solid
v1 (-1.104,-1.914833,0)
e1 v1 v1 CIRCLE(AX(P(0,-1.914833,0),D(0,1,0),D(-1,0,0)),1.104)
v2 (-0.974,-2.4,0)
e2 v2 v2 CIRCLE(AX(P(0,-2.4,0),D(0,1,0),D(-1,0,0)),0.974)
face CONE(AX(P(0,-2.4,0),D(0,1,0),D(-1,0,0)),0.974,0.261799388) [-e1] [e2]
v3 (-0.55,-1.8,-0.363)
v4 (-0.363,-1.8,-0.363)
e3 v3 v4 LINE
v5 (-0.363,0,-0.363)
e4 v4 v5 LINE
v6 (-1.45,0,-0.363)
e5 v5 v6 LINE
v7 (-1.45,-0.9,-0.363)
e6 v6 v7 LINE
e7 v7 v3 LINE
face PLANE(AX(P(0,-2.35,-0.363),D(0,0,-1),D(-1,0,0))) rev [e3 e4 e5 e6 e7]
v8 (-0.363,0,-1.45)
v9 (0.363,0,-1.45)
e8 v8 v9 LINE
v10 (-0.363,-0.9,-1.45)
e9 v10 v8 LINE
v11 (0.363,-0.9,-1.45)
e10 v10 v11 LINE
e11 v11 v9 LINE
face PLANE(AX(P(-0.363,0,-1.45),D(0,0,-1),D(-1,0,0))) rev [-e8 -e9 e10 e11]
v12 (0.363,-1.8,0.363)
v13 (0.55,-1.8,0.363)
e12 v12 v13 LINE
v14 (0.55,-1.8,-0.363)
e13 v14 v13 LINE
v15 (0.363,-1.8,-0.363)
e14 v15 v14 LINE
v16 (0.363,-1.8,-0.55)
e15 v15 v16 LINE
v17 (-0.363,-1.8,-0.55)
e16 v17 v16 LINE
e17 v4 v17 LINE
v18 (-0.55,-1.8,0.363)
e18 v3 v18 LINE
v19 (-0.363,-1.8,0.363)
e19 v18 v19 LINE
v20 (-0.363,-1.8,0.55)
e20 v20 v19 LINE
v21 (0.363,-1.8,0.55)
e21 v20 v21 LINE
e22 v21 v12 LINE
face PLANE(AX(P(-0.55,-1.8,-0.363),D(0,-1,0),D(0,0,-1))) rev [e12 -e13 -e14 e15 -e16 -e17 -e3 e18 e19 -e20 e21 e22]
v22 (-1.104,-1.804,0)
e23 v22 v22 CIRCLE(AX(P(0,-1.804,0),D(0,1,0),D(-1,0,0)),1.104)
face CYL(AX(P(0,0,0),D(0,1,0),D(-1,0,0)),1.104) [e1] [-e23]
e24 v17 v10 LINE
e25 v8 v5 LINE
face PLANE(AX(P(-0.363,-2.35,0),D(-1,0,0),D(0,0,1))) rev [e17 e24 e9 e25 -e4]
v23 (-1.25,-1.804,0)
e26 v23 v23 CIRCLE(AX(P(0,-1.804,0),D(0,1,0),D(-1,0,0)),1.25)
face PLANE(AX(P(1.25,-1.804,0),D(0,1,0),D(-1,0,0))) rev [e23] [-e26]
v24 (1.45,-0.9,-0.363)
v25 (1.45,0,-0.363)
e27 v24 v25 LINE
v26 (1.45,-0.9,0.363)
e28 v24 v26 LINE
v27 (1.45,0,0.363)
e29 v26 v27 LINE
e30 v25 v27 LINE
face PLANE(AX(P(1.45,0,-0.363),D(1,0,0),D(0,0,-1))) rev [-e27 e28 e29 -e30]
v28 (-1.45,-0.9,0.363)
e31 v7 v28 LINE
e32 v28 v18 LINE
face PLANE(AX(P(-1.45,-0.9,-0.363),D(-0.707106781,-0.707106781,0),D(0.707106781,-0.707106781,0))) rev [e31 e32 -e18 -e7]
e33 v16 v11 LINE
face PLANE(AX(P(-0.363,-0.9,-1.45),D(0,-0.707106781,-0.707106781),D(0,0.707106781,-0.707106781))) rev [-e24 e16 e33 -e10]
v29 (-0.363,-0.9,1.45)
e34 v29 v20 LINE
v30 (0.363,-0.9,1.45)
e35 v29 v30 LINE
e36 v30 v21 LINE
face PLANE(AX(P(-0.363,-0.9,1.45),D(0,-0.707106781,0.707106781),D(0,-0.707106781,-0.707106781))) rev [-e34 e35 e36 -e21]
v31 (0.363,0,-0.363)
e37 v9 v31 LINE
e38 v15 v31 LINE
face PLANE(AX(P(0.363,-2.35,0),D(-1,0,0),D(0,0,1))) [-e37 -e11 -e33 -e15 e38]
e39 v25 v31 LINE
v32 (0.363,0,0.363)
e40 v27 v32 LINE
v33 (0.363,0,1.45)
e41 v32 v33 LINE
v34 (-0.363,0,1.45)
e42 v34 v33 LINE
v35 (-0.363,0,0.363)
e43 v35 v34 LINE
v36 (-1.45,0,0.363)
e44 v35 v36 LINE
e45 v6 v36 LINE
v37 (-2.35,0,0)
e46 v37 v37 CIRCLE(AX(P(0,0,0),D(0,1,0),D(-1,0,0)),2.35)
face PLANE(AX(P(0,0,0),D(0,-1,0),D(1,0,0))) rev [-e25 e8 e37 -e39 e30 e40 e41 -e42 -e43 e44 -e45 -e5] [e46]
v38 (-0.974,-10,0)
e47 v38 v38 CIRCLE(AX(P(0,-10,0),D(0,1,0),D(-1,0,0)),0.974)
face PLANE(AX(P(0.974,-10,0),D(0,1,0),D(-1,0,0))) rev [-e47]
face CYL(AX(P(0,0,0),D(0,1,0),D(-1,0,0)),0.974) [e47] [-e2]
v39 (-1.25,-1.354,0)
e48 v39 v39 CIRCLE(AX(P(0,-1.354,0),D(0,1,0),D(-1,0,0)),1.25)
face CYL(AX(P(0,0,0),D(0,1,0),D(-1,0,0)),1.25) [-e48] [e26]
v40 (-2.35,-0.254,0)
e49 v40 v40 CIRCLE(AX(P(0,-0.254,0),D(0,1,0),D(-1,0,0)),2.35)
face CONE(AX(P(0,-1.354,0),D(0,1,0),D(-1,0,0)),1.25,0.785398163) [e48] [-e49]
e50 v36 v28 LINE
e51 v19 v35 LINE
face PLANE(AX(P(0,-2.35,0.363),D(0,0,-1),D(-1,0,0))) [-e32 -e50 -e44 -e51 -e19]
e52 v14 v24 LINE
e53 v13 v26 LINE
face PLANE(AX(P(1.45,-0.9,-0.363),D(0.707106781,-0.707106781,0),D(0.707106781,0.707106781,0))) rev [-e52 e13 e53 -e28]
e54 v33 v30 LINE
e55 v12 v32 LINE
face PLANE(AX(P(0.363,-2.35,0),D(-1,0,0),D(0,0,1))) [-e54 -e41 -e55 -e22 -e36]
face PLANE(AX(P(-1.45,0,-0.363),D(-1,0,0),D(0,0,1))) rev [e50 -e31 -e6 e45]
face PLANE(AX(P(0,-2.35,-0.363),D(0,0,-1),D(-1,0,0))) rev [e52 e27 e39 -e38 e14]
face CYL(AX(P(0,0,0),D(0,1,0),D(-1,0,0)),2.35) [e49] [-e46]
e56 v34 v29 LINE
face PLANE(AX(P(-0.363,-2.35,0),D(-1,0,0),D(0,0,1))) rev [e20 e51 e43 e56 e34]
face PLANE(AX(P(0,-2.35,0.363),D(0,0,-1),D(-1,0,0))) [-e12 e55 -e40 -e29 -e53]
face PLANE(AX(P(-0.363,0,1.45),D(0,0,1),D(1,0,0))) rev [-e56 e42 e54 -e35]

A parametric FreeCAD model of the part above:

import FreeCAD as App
import Part
import Sketcher

V = App.Vector
Q = App.Units.Quantity

doc = App.newDocument("Part")
params = doc.addObject("Spreadsheet::Sheet", "Params")
for row, (alias, value) in enumerate([
    ("sketch1_height", "10 mm"),
    ("sketch1_height2", "7.6 mm"),
    ("sketch1_width", "2.35 mm"),
    ("sketch1_height3", "0.45 mm"),
    ("revolution_angle", "360 deg"),
    ("sketch2_width", "1.1 mm"),
    ("sketch2_width2", "2.9 mm"),
    ("sketch2_height", "0.9 mm"),
    ("pocket1_length", "0.363 mm"),
    ("pocket1_length2", "0.363 mm"),
    ("sketch3_width", "0.9 mm"),
    ("sketch3_height", "1.1 mm"),
    ("sketch3_height2", "2.9 mm"),
    ("pocket2_length", "0.363 mm"),
    ("pocket2_length2", "0.363 mm"),
], start=1):
    params.set(f"A{row}", alias)
    params.set(f"B{row}", "=" + value)
    params.setAlias(f"B{row}", alias)

body = doc.addObject("PartDesign::Body", "Body")

# Sketch on XY plane
sketch1 = body.newObject("Sketcher::SketchObject", "Sketch")
sketch1.AttachmentSupport = (doc.getObject("XY_Plane"), [""])
sketch1.MapMode = "FlatFace"
sketch1.addGeometry([
    Part.LineSegment(V(2.35, 0, 0), V(0, 0, 0)),  # 0
    Part.LineSegment(V(0, 0, 0), V(0, -10, 0)),  # 1
    Part.LineSegment(V(0, -10, 0), V(0.97, -10, 0)),  # 2
    Part.LineSegment(V(0.97, -10, 0), V(0.97, -2.4, 0)),  # 3
    Part.LineSegment(V(0.97, -2.4, 0), V(1.1, -1.91, 0)),  # 4
    Part.LineSegment(V(1.1, -1.91, 0), V(1.1, -1.8, 0)),  # 5
    Part.LineSegment(V(1.1, -1.8, 0), V(1.25, -1.8, 0)),  # 6
    Part.LineSegment(V(1.25, -1.8, 0), V(1.25, -1.35, 0)),  # 7
    Part.LineSegment(V(1.25, -1.35, 0), V(2.35, -0.25, 0)),  # 8
    Part.LineSegment(V(2.35, -0.25, 0), V(2.35, 0, 0)),  # 9
], False)
sketch1.addConstraint([
    Sketcher.Constraint("Coincident", 0, 2, 1, 1),
    Sketcher.Constraint("Coincident", 1, 2, 2, 1),
    Sketcher.Constraint("Coincident", 2, 2, 3, 1),
    Sketcher.Constraint("Coincident", 3, 2, 4, 1),
    Sketcher.Constraint("Coincident", 4, 2, 5, 1),
    Sketcher.Constraint("Coincident", 5, 2, 6, 1),
    Sketcher.Constraint("Coincident", 6, 2, 7, 1),
    Sketcher.Constraint("Coincident", 7, 2, 8, 1),
    Sketcher.Constraint("Coincident", 8, 2, 9, 1),
    Sketcher.Constraint("Coincident", 9, 2, 0, 1),
    Sketcher.Constraint("Horizontal", 0),
    Sketcher.Constraint("Vertical", 1),
    Sketcher.Constraint("Horizontal", 2),
    Sketcher.Constraint("Vertical", 3),
    Sketcher.Constraint("Vertical", 5),
    Sketcher.Constraint("Horizontal", 6),
    Sketcher.Constraint("Vertical", 7),
    Sketcher.Constraint("Vertical", 9),
    Sketcher.Constraint("Coincident", 0, 2, -1, 1),
    Sketcher.Constraint("DistanceY", 1, 2, 1, 1, 10.0),
    Sketcher.Constraint("Angle", 4, Q("75 deg")),
    Sketcher.Constraint("Angle", 8, Q("45 deg")),
    Sketcher.Constraint("DistanceY", 3, 1, 3, 2, 7.6),
    Sketcher.Constraint("DistanceX", 0, 2, 0, 1, 2.35),
    Sketcher.Constraint("DistanceY", 7, 1, 7, 2, 0.45),
    Sketcher.Constraint("DistanceX", 7, 2, 8, 2, 1.1),
    Sketcher.Constraint("DistanceX", 2, 1, 2, 2, 0.974),
    Sketcher.Constraint("DistanceX", 6, 1, 6, 2, 0.146),
    Sketcher.Constraint("DistanceY", 9, 1, 9, 2, 0.254),
])
sketch1.setExpression("Constraints[19]", "Params.sketch1_height")
sketch1.setExpression("Constraints[22]", "Params.sketch1_height2")
sketch1.setExpression("Constraints[23]", "Params.sketch1_width")
sketch1.setExpression("Constraints[24]", "Params.sketch1_height3")
revolution = body.newObject("PartDesign::Revolution", "Revolution")
revolution.Profile = sketch1
revolution.ReferenceAxis = (sketch1, ["V_Axis"])
revolution.setExpression("Angle", "Params.revolution_angle")

# Sketch on XY plane
sketch2 = body.newObject("Sketcher::SketchObject", "Sketch001")
sketch2.AttachmentSupport = (doc.getObject("XY_Plane"), [""])
sketch2.MapMode = "FlatFace"
sketch2.addGeometry([
    Part.LineSegment(V(-0.6, -1.8, 0), V(0.6, -1.8, 0)),  # 0
    Part.LineSegment(V(0.6, -1.8, 0), V(1.4, -0.9, 0)),  # 1
    Part.LineSegment(V(1.4, -0.9, 0), V(1.4, 0, 0)),  # 2
    Part.LineSegment(V(1.4, 0, 0), V(-1.4, 0, 0)),  # 3
    Part.LineSegment(V(-1.4, 0, 0), V(-1.4, -0.9, 0)),  # 4
    Part.LineSegment(V(-1.4, -0.9, 0), V(-0.6, -1.8, 0)),  # 5
], False)
sketch2.addConstraint([
    Sketcher.Constraint("Coincident", 0, 2, 1, 1),
    Sketcher.Constraint("Coincident", 1, 2, 2, 1),
    Sketcher.Constraint("Coincident", 2, 2, 3, 1),
    Sketcher.Constraint("Coincident", 3, 2, 4, 1),
    Sketcher.Constraint("Coincident", 4, 2, 5, 1),
    Sketcher.Constraint("Coincident", 5, 2, 0, 1),
    Sketcher.Constraint("Horizontal", 0),
    Sketcher.Constraint("Vertical", 2),
    Sketcher.Constraint("Horizontal", 3),
    Sketcher.Constraint("Vertical", 4),
    Sketcher.Constraint("Symmetric", 2, 2, 3, 2, -1, 1),
    Sketcher.Constraint("Perpendicular", 1, 5),
    Sketcher.Constraint("Horizontal", 1, 2, 4, 2),
    Sketcher.Constraint("Equal", 1, 5),
    Sketcher.Constraint("DistanceX", 0, 1, 0, 2, 1.1),
    Sketcher.Constraint("DistanceX", 3, 2, 3, 1, 2.9),
    Sketcher.Constraint("DistanceY", 2, 1, 2, 2, 0.9),
])
sketch2.setExpression("Constraints[14]", "Params.sketch2_width")
sketch2.setExpression("Constraints[15]", "Params.sketch2_width2")
sketch2.setExpression("Constraints[16]", "Params.sketch2_height")
pocket1 = body.newObject("PartDesign::Pocket", "Pocket")
pocket1.Profile = sketch2
pocket1.Type = "TwoLengths"
pocket1.setExpression("Length", "Params.pocket1_length")
pocket1.setExpression("Length2", "Params.pocket1_length2")
pocket1.Reversed = True

# Sketch on YZ plane
sketch3 = body.newObject("Sketcher::SketchObject", "Sketch002")
sketch3.AttachmentSupport = (doc.getObject("YZ_Plane"), [""])
sketch3.MapMode = "FlatFace"
sketch3.addGeometry([
    Part.LineSegment(V(-1.8, 0.6, 0), V(-1.8, -0.6, 0)),  # 0
    Part.LineSegment(V(-1.8, -0.6, 0), V(-0.9, -1.4, 0)),  # 1
    Part.LineSegment(V(-0.9, -1.4, 0), V(0, -1.4, 0)),  # 2
    Part.LineSegment(V(0, -1.4, 0), V(0, 1.4, 0)),  # 3
    Part.LineSegment(V(0, 1.4, 0), V(-0.9, 1.4, 0)),  # 4
    Part.LineSegment(V(-0.9, 1.4, 0), V(-1.8, 0.6, 0)),  # 5
], False)
sketch3.addConstraint([
    Sketcher.Constraint("Coincident", 0, 2, 1, 1),
    Sketcher.Constraint("Coincident", 1, 2, 2, 1),
    Sketcher.Constraint("Coincident", 2, 2, 3, 1),
    Sketcher.Constraint("Coincident", 3, 2, 4, 1),
    Sketcher.Constraint("Coincident", 4, 2, 5, 1),
    Sketcher.Constraint("Coincident", 5, 2, 0, 1),
    Sketcher.Constraint("Vertical", 0),
    Sketcher.Constraint("Horizontal", 2),
    Sketcher.Constraint("Vertical", 3),
    Sketcher.Constraint("Horizontal", 4),
    Sketcher.Constraint("Symmetric", 2, 2, 3, 2, -1, 1),
    Sketcher.Constraint("Perpendicular", 1, 5),
    Sketcher.Constraint("Vertical", 1, 2, 4, 2),
    Sketcher.Constraint("Equal", 1, 5),
    Sketcher.Constraint("DistanceX", 2, 1, 2, 2, 0.9),
    Sketcher.Constraint("DistanceY", 0, 2, 0, 1, 1.1),
    Sketcher.Constraint("DistanceY", 3, 1, 3, 2, 2.9),
])
sketch3.setExpression("Constraints[14]", "Params.sketch3_width")
sketch3.setExpression("Constraints[15]", "Params.sketch3_height")
sketch3.setExpression("Constraints[16]", "Params.sketch3_height2")
pocket2 = body.newObject("PartDesign::Pocket", "Pocket001")
pocket2.Profile = sketch3
pocket2.Type = "TwoLengths"
pocket2.setExpression("Length", "Params.pocket2_length")
pocket2.setExpression("Length2", "Params.pocket2_length2")
pocket2.Reversed = True

doc.recompute()
